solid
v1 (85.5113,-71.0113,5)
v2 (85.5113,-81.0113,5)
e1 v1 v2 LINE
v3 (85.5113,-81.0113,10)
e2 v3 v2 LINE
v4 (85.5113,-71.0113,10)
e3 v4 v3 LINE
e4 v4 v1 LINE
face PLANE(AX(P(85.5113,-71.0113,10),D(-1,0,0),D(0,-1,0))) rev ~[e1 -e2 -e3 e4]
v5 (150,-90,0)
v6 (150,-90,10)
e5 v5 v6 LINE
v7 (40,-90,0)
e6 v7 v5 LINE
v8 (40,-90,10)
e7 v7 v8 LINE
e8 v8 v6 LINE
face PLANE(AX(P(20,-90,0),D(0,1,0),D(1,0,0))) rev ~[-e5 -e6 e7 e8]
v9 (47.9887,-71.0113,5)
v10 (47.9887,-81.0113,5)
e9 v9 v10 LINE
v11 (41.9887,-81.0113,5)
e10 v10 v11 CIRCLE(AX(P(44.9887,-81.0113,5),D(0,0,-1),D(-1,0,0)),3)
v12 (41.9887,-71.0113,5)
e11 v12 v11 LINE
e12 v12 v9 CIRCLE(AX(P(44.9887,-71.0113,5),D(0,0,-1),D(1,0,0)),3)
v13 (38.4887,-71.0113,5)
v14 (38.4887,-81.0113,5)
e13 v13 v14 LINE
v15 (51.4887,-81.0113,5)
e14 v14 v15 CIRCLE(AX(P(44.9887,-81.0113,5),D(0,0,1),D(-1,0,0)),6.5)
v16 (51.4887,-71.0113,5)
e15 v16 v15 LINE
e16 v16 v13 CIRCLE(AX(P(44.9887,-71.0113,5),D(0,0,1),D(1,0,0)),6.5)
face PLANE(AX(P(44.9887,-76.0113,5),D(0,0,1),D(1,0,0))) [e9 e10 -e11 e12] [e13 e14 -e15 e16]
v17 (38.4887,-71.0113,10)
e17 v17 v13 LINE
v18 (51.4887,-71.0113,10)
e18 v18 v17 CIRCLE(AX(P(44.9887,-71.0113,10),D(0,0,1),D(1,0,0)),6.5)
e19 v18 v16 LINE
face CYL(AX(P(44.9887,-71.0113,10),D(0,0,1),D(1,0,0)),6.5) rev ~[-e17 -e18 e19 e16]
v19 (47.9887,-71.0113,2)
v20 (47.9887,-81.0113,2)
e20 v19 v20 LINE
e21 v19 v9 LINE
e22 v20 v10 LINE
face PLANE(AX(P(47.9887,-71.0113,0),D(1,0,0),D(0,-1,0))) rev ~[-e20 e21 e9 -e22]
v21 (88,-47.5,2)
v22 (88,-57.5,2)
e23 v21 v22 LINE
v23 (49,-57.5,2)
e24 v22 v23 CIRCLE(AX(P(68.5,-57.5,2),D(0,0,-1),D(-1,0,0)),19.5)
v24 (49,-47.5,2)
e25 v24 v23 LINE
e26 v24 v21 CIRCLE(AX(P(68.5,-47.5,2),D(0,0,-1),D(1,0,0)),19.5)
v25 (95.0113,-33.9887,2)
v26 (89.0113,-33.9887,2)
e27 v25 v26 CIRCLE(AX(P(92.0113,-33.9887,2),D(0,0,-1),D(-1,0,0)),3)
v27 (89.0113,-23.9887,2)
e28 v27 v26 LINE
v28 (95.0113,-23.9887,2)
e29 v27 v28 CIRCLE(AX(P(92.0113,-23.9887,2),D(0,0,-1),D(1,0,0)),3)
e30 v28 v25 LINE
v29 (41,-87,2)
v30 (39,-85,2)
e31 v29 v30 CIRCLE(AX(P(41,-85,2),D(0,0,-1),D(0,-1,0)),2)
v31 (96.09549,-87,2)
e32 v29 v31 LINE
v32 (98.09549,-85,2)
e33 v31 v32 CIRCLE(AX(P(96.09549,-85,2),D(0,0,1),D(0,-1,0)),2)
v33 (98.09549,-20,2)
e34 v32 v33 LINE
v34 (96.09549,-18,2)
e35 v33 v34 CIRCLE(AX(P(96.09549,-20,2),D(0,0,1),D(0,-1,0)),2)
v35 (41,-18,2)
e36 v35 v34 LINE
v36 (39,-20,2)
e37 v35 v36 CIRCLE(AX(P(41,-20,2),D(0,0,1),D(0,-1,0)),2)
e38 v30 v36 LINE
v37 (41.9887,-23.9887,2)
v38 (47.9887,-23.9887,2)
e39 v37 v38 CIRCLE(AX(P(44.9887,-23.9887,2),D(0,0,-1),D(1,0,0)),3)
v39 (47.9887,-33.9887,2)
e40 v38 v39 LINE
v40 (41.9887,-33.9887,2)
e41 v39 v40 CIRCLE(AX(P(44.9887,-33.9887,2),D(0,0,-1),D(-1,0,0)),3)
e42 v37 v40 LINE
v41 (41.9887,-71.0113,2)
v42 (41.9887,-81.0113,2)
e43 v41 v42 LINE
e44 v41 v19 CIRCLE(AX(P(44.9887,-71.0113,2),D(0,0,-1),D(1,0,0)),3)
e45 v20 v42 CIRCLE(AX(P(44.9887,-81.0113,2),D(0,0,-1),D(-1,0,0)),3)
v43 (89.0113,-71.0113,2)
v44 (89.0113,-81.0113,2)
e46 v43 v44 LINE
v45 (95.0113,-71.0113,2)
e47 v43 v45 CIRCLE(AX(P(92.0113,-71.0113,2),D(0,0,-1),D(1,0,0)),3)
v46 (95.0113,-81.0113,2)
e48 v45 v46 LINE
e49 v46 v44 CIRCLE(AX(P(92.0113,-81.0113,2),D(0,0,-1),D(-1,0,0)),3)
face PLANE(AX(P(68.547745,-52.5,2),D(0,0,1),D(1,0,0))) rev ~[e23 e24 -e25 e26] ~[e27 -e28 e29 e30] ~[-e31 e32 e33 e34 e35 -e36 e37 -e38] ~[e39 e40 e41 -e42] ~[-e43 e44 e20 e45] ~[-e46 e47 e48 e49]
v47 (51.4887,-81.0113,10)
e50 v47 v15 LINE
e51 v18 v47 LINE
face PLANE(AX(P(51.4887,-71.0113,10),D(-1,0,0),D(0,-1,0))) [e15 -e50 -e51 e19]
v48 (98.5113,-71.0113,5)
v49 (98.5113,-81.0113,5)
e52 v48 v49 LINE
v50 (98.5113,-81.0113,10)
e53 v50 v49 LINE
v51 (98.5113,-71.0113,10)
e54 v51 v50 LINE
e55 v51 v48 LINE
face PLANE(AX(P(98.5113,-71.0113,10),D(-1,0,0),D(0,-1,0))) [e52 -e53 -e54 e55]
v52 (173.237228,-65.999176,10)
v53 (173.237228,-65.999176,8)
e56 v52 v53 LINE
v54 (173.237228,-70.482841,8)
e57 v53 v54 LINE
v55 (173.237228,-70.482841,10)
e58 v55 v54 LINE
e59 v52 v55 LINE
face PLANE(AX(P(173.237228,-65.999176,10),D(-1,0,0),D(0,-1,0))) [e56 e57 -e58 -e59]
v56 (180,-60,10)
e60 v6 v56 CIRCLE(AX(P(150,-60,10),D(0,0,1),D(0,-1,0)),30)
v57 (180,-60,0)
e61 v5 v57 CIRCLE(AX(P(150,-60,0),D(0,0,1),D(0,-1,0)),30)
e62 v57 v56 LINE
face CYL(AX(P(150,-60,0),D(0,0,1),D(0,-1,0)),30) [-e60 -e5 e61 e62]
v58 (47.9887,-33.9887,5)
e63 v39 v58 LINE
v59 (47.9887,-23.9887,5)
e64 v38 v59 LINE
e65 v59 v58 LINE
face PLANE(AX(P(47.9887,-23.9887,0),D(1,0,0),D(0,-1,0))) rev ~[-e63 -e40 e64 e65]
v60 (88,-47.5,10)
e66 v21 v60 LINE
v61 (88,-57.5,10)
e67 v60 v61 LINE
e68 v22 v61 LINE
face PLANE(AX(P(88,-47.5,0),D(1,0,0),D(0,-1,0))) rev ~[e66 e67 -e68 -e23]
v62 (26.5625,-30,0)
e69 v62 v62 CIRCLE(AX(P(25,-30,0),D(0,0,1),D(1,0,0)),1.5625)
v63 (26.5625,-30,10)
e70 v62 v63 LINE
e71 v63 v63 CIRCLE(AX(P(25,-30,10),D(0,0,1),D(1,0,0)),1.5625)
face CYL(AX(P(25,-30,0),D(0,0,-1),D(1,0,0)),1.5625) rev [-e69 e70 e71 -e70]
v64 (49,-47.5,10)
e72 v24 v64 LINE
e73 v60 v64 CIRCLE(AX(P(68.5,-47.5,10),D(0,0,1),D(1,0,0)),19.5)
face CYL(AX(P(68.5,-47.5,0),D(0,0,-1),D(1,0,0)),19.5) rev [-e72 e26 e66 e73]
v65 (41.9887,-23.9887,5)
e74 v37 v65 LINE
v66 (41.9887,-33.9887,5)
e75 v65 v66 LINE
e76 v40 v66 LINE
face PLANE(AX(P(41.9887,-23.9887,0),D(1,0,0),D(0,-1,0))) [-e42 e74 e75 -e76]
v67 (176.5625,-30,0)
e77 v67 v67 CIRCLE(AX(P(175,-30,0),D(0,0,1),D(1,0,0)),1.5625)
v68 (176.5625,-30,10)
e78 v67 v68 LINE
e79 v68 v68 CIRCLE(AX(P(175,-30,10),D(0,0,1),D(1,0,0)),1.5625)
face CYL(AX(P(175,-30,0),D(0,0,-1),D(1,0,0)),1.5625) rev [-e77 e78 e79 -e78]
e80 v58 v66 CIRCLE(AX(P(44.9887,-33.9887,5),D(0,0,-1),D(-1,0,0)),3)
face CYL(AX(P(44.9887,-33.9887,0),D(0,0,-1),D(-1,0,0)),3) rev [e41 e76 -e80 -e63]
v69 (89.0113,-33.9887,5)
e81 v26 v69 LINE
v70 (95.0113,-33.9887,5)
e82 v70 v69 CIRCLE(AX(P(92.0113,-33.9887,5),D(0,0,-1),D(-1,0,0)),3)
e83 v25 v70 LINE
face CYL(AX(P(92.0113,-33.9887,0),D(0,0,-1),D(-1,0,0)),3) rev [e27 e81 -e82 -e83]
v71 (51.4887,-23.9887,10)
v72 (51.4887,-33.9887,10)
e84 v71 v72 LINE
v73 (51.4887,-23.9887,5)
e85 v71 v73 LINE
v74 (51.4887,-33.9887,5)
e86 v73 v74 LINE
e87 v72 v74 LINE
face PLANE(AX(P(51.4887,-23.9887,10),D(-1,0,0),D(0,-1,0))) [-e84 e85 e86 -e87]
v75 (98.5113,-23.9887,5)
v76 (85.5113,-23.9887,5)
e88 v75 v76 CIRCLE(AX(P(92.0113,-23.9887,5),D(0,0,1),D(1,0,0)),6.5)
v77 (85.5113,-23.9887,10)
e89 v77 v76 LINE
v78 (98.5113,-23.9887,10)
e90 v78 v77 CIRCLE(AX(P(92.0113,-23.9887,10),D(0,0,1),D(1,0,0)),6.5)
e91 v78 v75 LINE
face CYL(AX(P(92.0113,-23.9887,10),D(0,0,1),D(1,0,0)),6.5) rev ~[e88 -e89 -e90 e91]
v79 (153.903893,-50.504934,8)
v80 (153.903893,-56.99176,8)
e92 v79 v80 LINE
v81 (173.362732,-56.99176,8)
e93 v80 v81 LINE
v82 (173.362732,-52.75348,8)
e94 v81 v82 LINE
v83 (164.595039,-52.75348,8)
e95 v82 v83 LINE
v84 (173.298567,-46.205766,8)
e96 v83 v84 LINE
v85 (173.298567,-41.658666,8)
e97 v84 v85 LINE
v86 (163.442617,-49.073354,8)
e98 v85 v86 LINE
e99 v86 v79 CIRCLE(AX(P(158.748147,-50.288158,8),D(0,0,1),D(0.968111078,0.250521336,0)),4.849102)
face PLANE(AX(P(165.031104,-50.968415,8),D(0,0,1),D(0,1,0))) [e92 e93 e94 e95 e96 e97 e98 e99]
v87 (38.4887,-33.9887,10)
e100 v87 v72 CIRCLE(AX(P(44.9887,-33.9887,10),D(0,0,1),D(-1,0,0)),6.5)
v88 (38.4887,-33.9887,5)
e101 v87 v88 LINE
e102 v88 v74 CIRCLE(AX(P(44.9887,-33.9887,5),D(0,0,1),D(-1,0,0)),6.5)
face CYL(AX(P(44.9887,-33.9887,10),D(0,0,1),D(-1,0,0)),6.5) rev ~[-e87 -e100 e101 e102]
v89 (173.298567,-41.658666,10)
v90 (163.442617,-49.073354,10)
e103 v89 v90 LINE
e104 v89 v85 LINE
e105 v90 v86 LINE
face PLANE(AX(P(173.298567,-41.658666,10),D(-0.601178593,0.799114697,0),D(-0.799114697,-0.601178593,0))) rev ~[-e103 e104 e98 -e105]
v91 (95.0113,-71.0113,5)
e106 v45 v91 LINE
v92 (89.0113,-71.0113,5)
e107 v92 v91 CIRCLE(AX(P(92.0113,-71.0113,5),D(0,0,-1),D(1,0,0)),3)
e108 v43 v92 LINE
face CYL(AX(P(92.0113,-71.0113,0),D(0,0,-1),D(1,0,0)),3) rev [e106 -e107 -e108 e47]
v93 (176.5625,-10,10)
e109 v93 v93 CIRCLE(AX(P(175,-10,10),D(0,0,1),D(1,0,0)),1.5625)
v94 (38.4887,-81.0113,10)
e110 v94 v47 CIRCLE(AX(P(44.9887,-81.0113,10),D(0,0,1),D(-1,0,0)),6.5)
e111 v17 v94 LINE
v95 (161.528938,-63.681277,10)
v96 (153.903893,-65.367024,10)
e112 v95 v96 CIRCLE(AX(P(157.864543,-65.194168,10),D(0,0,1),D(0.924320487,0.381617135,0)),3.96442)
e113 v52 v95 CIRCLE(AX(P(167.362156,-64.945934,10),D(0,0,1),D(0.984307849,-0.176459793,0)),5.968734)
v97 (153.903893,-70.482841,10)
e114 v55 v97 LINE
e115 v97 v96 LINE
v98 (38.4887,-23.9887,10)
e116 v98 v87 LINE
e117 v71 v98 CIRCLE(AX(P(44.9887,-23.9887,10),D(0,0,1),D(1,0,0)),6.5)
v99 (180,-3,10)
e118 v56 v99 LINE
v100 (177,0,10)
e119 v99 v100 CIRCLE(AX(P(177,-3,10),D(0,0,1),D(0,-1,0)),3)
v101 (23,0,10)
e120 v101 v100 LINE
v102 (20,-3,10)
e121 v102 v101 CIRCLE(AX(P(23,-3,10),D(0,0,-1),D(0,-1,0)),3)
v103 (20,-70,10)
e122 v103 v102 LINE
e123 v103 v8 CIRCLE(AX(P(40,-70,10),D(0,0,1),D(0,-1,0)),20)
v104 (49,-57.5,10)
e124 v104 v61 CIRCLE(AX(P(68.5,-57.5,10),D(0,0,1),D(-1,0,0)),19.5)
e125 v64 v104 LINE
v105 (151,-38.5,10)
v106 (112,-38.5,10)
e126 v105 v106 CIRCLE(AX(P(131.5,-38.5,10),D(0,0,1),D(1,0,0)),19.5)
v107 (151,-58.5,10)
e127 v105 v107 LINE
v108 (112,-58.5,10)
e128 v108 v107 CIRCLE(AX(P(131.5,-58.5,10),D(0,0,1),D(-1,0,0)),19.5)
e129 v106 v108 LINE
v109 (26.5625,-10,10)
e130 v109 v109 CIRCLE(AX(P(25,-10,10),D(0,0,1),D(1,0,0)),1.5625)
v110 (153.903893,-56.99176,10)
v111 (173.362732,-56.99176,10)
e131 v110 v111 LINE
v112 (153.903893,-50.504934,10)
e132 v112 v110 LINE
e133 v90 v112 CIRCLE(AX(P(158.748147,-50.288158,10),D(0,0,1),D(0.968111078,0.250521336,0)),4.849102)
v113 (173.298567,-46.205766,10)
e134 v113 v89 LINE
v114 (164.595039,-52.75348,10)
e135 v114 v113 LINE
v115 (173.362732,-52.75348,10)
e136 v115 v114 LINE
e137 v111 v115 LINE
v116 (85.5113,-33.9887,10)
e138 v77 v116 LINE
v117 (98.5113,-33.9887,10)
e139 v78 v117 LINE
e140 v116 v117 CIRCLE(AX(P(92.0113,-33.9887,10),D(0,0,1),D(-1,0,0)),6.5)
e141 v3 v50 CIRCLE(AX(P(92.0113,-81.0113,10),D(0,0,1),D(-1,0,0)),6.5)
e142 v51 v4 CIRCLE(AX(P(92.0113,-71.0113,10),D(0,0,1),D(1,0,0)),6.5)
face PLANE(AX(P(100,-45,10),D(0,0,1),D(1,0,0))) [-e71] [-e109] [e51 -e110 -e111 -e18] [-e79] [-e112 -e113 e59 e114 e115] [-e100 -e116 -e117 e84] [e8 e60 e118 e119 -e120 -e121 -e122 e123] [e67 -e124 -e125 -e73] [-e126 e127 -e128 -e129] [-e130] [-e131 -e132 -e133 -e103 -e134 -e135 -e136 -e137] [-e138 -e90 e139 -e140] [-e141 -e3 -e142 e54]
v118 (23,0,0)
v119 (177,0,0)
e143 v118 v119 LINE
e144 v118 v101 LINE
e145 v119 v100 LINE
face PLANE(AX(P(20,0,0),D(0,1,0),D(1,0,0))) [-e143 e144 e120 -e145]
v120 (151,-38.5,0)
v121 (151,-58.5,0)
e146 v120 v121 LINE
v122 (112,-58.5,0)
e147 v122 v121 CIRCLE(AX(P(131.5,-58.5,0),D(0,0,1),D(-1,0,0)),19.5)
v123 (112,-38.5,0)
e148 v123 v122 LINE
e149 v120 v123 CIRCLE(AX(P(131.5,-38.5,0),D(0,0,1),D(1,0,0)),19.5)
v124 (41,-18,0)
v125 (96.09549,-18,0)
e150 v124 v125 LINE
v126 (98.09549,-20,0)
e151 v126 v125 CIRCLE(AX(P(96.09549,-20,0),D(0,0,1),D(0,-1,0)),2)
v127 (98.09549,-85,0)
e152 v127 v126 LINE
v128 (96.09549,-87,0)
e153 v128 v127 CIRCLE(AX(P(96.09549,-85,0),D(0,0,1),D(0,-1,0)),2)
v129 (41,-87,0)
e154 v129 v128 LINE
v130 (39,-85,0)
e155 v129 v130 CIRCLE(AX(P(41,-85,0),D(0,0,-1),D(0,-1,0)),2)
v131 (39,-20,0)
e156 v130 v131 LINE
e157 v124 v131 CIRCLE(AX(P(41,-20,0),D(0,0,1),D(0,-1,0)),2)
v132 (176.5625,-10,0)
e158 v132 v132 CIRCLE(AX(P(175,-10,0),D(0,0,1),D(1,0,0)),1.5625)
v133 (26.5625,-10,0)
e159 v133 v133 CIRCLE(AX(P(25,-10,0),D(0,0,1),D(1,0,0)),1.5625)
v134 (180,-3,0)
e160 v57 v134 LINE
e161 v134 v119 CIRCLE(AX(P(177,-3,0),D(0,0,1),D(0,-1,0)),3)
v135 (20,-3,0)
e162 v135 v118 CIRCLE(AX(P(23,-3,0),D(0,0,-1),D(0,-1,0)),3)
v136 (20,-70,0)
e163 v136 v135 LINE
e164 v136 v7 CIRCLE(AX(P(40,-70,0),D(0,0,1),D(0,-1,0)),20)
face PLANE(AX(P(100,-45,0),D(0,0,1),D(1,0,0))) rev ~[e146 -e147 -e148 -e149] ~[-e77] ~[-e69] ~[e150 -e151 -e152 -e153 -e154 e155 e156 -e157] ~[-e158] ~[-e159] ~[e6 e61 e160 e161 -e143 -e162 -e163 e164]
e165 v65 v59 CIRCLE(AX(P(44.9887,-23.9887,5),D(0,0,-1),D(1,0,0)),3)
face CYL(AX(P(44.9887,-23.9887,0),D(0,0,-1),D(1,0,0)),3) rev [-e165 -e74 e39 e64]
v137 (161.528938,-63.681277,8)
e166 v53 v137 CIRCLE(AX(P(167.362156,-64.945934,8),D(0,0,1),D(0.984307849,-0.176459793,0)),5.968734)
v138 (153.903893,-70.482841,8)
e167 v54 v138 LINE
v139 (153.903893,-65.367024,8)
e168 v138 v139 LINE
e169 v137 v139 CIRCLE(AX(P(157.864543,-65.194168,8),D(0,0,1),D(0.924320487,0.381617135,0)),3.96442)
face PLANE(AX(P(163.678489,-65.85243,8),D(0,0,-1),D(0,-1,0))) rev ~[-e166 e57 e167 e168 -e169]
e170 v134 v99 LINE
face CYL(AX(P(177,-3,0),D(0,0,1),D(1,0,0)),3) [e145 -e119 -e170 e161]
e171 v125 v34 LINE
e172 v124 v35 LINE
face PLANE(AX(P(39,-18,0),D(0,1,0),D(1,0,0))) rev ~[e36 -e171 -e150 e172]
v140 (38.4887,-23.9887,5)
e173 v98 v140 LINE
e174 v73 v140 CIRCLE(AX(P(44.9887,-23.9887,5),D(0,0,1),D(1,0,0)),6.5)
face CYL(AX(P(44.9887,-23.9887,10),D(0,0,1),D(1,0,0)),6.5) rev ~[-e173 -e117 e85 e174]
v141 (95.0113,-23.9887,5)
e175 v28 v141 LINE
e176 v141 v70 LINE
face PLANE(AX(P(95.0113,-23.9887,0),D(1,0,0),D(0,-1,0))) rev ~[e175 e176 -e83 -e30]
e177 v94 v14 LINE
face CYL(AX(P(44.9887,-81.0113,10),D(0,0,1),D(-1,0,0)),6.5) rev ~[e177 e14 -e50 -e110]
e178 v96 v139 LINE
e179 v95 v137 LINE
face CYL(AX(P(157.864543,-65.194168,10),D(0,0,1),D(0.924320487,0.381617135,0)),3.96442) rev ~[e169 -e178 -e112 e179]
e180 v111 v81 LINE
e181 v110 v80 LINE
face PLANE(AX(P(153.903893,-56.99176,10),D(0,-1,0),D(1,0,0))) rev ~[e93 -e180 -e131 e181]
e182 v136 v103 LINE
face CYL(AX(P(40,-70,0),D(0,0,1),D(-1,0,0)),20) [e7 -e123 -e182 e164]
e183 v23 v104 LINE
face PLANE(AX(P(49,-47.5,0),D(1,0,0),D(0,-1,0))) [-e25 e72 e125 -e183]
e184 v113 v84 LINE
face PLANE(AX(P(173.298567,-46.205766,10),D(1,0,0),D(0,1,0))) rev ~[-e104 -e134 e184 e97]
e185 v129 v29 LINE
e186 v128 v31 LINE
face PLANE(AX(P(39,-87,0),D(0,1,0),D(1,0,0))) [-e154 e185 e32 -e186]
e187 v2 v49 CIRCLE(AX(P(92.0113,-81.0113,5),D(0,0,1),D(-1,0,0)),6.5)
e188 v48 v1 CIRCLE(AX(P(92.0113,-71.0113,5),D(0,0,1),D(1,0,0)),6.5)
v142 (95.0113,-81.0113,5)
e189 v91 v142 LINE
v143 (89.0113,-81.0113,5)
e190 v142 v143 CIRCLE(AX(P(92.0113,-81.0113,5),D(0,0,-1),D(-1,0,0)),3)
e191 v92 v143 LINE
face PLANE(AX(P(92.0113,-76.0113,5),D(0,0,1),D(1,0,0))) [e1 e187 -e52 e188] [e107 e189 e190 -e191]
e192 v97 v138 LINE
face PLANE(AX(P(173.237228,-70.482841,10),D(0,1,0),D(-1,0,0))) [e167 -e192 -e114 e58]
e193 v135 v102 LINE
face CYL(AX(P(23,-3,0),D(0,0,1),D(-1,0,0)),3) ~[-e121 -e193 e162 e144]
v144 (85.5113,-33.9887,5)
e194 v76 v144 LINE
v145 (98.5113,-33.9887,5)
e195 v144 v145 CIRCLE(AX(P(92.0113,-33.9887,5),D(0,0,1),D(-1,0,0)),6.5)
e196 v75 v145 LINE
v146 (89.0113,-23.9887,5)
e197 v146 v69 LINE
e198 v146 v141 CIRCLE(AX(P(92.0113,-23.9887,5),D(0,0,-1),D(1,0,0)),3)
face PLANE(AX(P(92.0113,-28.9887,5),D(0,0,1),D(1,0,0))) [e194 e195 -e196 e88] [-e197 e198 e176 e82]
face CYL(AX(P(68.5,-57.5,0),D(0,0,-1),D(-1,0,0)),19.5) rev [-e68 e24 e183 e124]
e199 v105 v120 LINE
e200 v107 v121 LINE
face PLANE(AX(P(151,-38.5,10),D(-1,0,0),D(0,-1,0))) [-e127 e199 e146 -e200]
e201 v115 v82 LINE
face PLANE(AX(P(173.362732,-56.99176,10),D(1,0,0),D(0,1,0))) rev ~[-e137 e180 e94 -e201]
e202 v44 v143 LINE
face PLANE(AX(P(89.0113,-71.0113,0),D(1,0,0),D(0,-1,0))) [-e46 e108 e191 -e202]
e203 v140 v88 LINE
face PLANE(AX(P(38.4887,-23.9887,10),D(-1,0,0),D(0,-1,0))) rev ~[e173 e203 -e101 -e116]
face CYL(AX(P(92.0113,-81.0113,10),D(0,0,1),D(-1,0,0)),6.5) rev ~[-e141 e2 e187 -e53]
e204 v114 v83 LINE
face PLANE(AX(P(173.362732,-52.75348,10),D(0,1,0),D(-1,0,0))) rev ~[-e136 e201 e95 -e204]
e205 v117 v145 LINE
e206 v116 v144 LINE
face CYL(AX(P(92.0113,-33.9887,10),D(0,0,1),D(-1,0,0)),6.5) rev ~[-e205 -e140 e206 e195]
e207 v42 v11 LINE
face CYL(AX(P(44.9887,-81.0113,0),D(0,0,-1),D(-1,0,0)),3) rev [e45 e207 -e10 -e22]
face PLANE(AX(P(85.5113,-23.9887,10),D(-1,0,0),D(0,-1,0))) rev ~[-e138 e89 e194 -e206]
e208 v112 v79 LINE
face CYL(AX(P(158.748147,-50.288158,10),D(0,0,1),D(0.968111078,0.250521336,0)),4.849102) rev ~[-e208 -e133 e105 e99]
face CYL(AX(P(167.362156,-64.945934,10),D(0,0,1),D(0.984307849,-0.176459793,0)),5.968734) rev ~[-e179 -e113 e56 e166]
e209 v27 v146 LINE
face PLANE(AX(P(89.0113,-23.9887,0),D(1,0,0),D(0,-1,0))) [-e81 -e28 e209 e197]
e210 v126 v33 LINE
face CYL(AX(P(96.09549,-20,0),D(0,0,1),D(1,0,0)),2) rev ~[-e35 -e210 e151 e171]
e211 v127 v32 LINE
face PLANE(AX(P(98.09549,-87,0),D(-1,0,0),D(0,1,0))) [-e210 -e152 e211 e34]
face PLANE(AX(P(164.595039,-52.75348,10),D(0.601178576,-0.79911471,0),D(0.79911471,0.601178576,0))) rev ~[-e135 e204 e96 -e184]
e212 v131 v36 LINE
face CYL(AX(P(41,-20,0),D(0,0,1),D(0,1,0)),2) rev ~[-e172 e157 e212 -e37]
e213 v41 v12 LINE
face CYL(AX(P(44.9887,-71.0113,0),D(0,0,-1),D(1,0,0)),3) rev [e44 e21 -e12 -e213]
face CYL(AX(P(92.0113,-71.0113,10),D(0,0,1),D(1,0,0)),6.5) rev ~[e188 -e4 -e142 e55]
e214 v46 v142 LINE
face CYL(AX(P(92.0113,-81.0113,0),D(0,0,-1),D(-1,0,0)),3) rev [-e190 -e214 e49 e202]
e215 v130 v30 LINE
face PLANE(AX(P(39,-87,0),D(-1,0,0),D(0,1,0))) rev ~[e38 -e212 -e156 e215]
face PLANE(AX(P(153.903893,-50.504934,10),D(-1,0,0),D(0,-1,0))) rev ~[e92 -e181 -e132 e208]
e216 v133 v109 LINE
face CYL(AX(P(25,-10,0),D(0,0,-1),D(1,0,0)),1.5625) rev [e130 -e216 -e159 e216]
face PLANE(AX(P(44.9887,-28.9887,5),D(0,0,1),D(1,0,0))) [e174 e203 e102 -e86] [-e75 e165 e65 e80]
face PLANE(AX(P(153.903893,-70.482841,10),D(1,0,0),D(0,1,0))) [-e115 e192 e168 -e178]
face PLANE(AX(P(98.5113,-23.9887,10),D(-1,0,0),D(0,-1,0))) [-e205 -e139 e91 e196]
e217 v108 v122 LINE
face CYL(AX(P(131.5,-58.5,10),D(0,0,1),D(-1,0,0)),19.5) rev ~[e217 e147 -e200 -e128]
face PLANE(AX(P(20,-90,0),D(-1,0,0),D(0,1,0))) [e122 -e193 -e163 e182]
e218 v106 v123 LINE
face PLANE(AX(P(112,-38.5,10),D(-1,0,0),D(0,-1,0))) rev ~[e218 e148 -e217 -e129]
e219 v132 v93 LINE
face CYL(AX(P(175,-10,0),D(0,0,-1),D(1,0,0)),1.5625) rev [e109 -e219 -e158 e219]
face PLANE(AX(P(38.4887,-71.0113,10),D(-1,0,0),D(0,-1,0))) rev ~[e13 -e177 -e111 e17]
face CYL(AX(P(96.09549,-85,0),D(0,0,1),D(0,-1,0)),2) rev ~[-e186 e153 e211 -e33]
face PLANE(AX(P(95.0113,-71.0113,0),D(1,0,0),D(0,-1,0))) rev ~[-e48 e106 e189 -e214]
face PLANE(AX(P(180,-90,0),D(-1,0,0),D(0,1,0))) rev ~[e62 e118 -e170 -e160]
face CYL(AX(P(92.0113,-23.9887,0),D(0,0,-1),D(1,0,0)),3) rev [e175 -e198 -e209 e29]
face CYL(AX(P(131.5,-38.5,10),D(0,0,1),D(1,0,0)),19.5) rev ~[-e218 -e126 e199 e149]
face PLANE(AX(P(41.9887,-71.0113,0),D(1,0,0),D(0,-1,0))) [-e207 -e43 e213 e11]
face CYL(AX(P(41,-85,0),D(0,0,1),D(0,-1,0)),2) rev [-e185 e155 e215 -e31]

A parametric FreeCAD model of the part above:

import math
import FreeCAD as App
import Part
import Sketcher
from FreeCAD import Vector


def edges_at(feature, points):
    """Names of the edges that pass closest to the given points."""
    edges = feature.Shape.Edges
    near = lambda p: min(range(len(edges)), key=lambda i: edges[i].distToShape(Part.Vertex(*p))[0])
    return sorted({f"Edge{near(p) + 1}" for p in points})


def add_polygon(sketch, points):
    """Adds a closed chain of lines whose ends are joined by coincident constraints."""
    first, n = sketch.GeometryCount, len(points)
    for a, b in zip(points, points[1:] + points[:1]):
        sketch.addGeometry(Part.LineSegment(App.Vector(*a, 0), App.Vector(*b, 0)), False)
    for i in range(n):
        sketch.addConstraint(Sketcher.Constraint("Coincident", first + i, 2, first + (i + 1) % n, 1))

doc = App.newDocument("Part")
params = doc.addObject("Spreadsheet::Sheet", "Params")
for row, (alias, value) in enumerate([
    ("sketch1_radius", "3 mm"),
    ("sketch1_radius2", "19.5 mm"),
    ("sketch1_width", "160 mm"),
    ("sketch1_height", "90 mm"),
    ("sketch1_height2", "10 mm"),
    ("pad1_length", "10 mm"),
    ("sketch2_radius", "6.5 mm"),
    ("sketch2_height", "10 mm"),
    ("pocket1_length", "5 mm"),
    ("fillet_radius", "20 mm"),
    ("fillet2_radius", "30 mm"),
    ("sketch3_radius", "19.5 mm"),
    ("sketch3_height", "20 mm"),
    ("fillet3_radius", "3 mm"),
    ("sketch4_height", "69 mm"),
    ("pocket3_length", "2 mm"),
    ("fillet4_radius", "2 mm"),
    ("pocket4_length", "2 mm"),
], start=1):
    params.set(f"A{row}", alias)
    params.set(f"B{row}", "=" + value)
    params.setAlias(f"B{row}", alias)

body = doc.addObject("PartDesign::Body", "Body")

# Sketch on XY plane
sketch1 = body.newObject("Sketcher::SketchObject", "Sketch")
sketch1.AttachmentSupport = (doc.getObject("XY_Plane"), [""])
sketch1.MapMode = "FlatFace"
add_polygon(sketch1, [(20, 0), (20, -90), (180, -90), (180, 0)])  # lines 0-3
sketch1.addGeometry(Part.ArcOfCircle(Part.Circle(Vector(44.9887, -71.0113, 0), Vector(0, 0, 1), 3), math.radians(0), math.radians(180)), False)  # 4
sketch1.addGeometry(Part.LineSegment(Vector(47.9887, -71.0113, 0), Vector(47.9887, -81.0113, 0)), False)  # 5
sketch1.addGeometry(Part.ArcOfCircle(Part.Circle(Vector(44.9887, -81.0113, 0), Vector(0, 0, 1), 3), math.radians(180), math.radians(360)), False)  # 6
sketch1.addGeometry(Part.LineSegment(Vector(41.9887, -81.0113, 0), Vector(41.9887, -71.0113, 0)), False)  # 7
sketch1.addGeometry(Part.ArcOfCircle(Part.Circle(Vector(92.0113, -71.0113, 0), Vector(0, 0, 1), 3), math.radians(0), math.radians(180)), False)  # 8
sketch1.addGeometry(Part.LineSegment(Vector(95.0113, -71.0113, 0), Vector(95.0113, -81.0113, 0)), False)  # 9
sketch1.addGeometry(Part.ArcOfCircle(Part.Circle(Vector(92.0113, -81.0113, 0), Vector(0, 0, 1), 3), math.radians(180), math.radians(360)), False)  # 10
sketch1.addGeometry(Part.LineSegment(Vector(89.0113, -81.0113, 0), Vector(89.0113, -71.0113, 0)), False)  # 11
sketch1.addGeometry(Part.ArcOfCircle(Part.Circle(Vector(68.5, -47.5, 0), Vector(0, 0, 1), 19.5), math.radians(0), math.radians(180)), False)  # 12
sketch1.addGeometry(Part.LineSegment(Vector(88, -47.5, 0), Vector(88, -57.5, 0)), False)  # 13
sketch1.addGeometry(Part.ArcOfCircle(Part.Circle(Vector(68.5, -57.5, 0), Vector(0, 0, 1), 19.5), math.radians(180), math.radians(360)), False)  # 14
sketch1.addGeometry(Part.LineSegment(Vector(49, -57.5, 0), Vector(49, -47.5, 0)), False)  # 15
sketch1.addGeometry(Part.Circle(Vector(25, -30, 0), Vector(0, 0, 1), 1.5625), False)  # 16
sketch1.addGeometry(Part.ArcOfCircle(Part.Circle(Vector(44.9887, -23.9887, 0), Vector(0, 0, 1), 3), math.radians(0), math.radians(180)), False)  # 17
sketch1.addGeometry(Part.LineSegment(Vector(47.9887, -23.9887, 0), Vector(47.9887, -33.9887, 0)), False)  # 18
sketch1.addGeometry(Part.ArcOfCircle(Part.Circle(Vector(44.9887, -33.9887, 0), Vector(0, 0, 1), 3), math.radians(180), math.radians(360)), False)  # 19
sketch1.addGeometry(Part.LineSegment(Vector(41.9887, -33.9887, 0), Vector(41.9887, -23.9887, 0)), False)  # 20
sketch1.addGeometry(Part.ArcOfCircle(Part.Circle(Vector(92.0113, -23.9887, 0), Vector(0, 0, 1), 3), math.radians(0), math.radians(180)), False)  # 21
sketch1.addGeometry(Part.LineSegment(Vector(95.0113, -23.9887, 0), Vector(95.0113, -33.9887, 0)), False)  # 22
sketch1.addGeometry(Part.ArcOfCircle(Part.Circle(Vector(92.0113, -33.9887, 0), Vector(0, 0, 1), 3), math.radians(180), math.radians(360)), False)  # 23
sketch1.addGeometry(Part.LineSegment(Vector(89.0113, -33.9887, 0), Vector(89.0113, -23.9887, 0)), False)  # 24
sketch1.addGeometry(Part.Circle(Vector(25, -10, 0), Vector(0, 0, 1), 1.5625), False)  # 25
sketch1.addGeometry(Part.Circle(Vector(175, -30, 0), Vector(0, 0, 1), 1.5625), False)  # 26
sketch1.addGeometry(Part.Circle(Vector(175, -10, 0), Vector(0, 0, 1), 1.5625), False)  # 27
sketch1.addConstraint(Sketcher.Constraint("Tangent", 4, 1, 5, 1))
sketch1.addConstraint(Sketcher.Constraint("Tangent", 5, 2, 6, 2))
sketch1.addConstraint(Sketcher.Constraint("Tangent", 6, 1, 7, 1))
sketch1.addConstraint(Sketcher.Constraint("Tangent", 7, 2, 4, 2))
sketch1.addConstraint(Sketcher.Constraint("Tangent", 8, 1, 9, 1))
sketch1.addConstraint(Sketcher.Constraint("Tangent", 9, 2, 10, 2))
sketch1.addConstraint(Sketcher.Constraint("Tangent", 10, 1, 11, 1))
sketch1.addConstraint(Sketcher.Constraint("Tangent", 11, 2, 8, 2))
sketch1.addConstraint(Sketcher.Constraint("Tangent", 12, 1, 13, 1))
sketch1.addConstraint(Sketcher.Constraint("Tangent", 13, 2, 14, 2))
sketch1.addConstraint(Sketcher.Constraint("Tangent", 14, 1, 15, 1))
sketch1.addConstraint(Sketcher.Constraint("Tangent", 15, 2, 12, 2))
sketch1.addConstraint(Sketcher.Constraint("Tangent", 17, 1, 18, 1))
sketch1.addConstraint(Sketcher.Constraint("Tangent", 18, 2, 19, 2))
sketch1.addConstraint(Sketcher.Constraint("Tangent", 19, 1, 20, 1))
sketch1.addConstraint(Sketcher.Constraint("Tangent", 20, 2, 17, 2))
sketch1.addConstraint(Sketcher.Constraint("Tangent", 21, 1, 22, 1))
sketch1.addConstraint(Sketcher.Constraint("Tangent", 22, 2, 23, 2))
sketch1.addConstraint(Sketcher.Constraint("Tangent", 23, 1, 24, 1))
sketch1.addConstraint(Sketcher.Constraint("Tangent", 24, 2, 21, 2))
sketch1.addConstraint(Sketcher.Constraint("Vertical", 0))
sketch1.addConstraint(Sketcher.Constraint("Horizontal", 1))
sketch1.addConstraint(Sketcher.Constraint("Vertical", 2))
sketch1.addConstraint(Sketcher.Constraint("Horizontal", 3))
sketch1.addConstraint(Sketcher.Constraint("Vertical", 5))
sketch1.addConstraint(Sketcher.Constraint("Vertical", 7))
sketch1.addConstraint(Sketcher.Constraint("Vertical", 9))
sketch1.addConstraint(Sketcher.Constraint("Vertical", 11))
sketch1.addConstraint(Sketcher.Constraint("Vertical", 13))
sketch1.addConstraint(Sketcher.Constraint("Vertical", 15))
sketch1.addConstraint(Sketcher.Constraint("Vertical", 18))
sketch1.addConstraint(Sketcher.Constraint("Vertical", 20))
sketch1.addConstraint(Sketcher.Constraint("Vertical", 22))
sketch1.addConstraint(Sketcher.Constraint("Vertical", 24))
sketch1.addConstraint(Sketcher.Constraint("Equal", 6, 8))
sketch1.addConstraint(Sketcher.Constraint("Equal", 10, 17))
sketch1.addConstraint(Sketcher.Constraint("Equal", 19, 21))
sketch1.addConstraint(Sketcher.Constraint("Equal", 16, 25))
sketch1.addConstraint(Sketcher.Constraint("Equal", 25, 26))
sketch1.addConstraint(Sketcher.Constraint("Equal", 26, 27))
sketch1.addConstraint(Sketcher.Constraint("PointOnObject", 2, 2, -1))
sketch1.addConstraint(Sketcher.Constraint("Horizontal", 4, 3, 8, 3))
sketch1.addConstraint(Sketcher.Constraint("Horizontal", 6, 3, 10, 3))
sketch1.addConstraint(Sketcher.Constraint("Horizontal", 17, 3, 21, 3))
sketch1.addConstraint(Sketcher.Constraint("Horizontal", 19, 3, 23, 3))
sketch1.addConstraint(Sketcher.Constraint("Horizontal", 16, 3, 26, 3))
sketch1.addConstraint(Sketcher.Constraint("Horizontal", 25, 3, 27, 3))
sketch1.addConstraint(Sketcher.Constraint("Vertical", 6, 3, 17, 3))
sketch1.addConstraint(Sketcher.Constraint("Vertical", 10, 3, 21, 3))
sketch1.addConstraint(Sketcher.Constraint("Vertical", 16, 3, 25, 3))
sketch1.addConstraint(Sketcher.Constraint("Vertical", 26, 3, 27, 3))
sketch1.addConstraint(Sketcher.Constraint("Equal", 11, 13))
sketch1.addConstraint(Sketcher.Constraint("Equal", 15, 18))
sketch1.addConstraint(Sketcher.Constraint("Radius", 4, 3.0))
sketch1.addConstraint(Sketcher.Constraint("Radius", 12, 19.5))
sketch1.addConstraint(Sketcher.Constraint("DistanceX", 1, 1, 1, 2, 160.0))
sketch1.addConstraint(Sketcher.Constraint("DistanceY", 0, 2, 0, 1, 90.0))
sketch1.addConstraint(Sketcher.Constraint("DistanceY", 5, 2, 5, 1, 10.0))
sketch1.addConstraint(Sketcher.Constraint("Diameter", 16, 3.125))
sketch1.addConstraint(Sketcher.Constraint("DistanceX", -1, 1, 16, 3, 25.0))
sketch1.addConstraint(Sketcher.Constraint("DistanceY", 16, 3, -1, 1, 30.0))
sketch1.addConstraint(Sketcher.Constraint("DistanceY", 25, 3, -1, 1, 10.0))
sketch1.addConstraint(Sketcher.Constraint("DistanceX", -1, 1, 26, 3, 175.0))
sketch1.addConstraint(Sketcher.Constraint("DistanceX", -1, 1, 0, 2, 20.0))
sketch1.addConstraint(Sketcher.Constraint("DistanceX", -1, 1, 12, 1, 88.0))
sketch1.addConstraint(Sketcher.Constraint("DistanceY", 12, 3, -1, 1, 47.5))
sketch1.addConstraint(Sketcher.Constraint("DistanceX", -1, 1, 4, 3, 44.9887))
sketch1.addConstraint(Sketcher.Constraint("DistanceY", 4, 3, -1, 1, 71.0113))
sketch1.addConstraint(Sketcher.Constraint("DistanceX", -1, 1, 8, 3, 92.0113))
sketch1.addConstraint(Sketcher.Constraint("DistanceY", 17, 3, -1, 1, 23.9887))
sketch1.setExpression("Constraints[57]", "Params.sketch1_radius")
sketch1.setExpression("Constraints[58]", "Params.sketch1_radius2")
sketch1.setExpression("Constraints[59]", "Params.sketch1_width")
sketch1.setExpression("Constraints[60]", "Params.sketch1_height")
sketch1.setExpression("Constraints[61]", "Params.sketch1_height2")
pad1 = body.newObject("PartDesign::Pad", "Pad")
pad1.Profile = sketch1
pad1.setExpression("Length", "Params.pad1_length")

# Sketch on XY plane
sketch2 = body.newObject("Sketcher::SketchObject", "Sketch001")
sketch2.AttachmentSupport = (doc.getObject("XY_Plane"), [""])
sketch2.MapMode = "FlatFace"
sketch2.AttachmentOffset = App.Placement(Vector(0, 0, 10), App.Rotation())
sketch2.addGeometry(Part.ArcOfCircle(Part.Circle(Vector(92.0113, -23.9887, 0), Vector(0, 0, 1), 6.5), math.radians(0), math.radians(180)), False)
sketch2.addGeometry(Part.LineSegment(Vector(85.5113, -23.9887, 0), Vector(85.5113, -33.9887, 0)), False)
sketch2.addGeometry(Part.ArcOfCircle(Part.Circle(Vector(92.0113, -33.9887, 0), Vector(0, 0, 1), 6.5), math.radians(180), math.radians(360)), False)
sketch2.addGeometry(Part.LineSegment(Vector(98.5113, -33.9887, 0), Vector(98.5113, -23.9887, 0)), False)
sketch2.addGeometry(Part.ArcOfCircle(Part.Circle(Vector(44.9887, -23.9887, 0), Vector(0, 0, 1), 6.5), math.radians(0), math.radians(180)), False)
sketch2.addGeometry(Part.LineSegment(Vector(38.4887, -23.9887, 0), Vector(38.4887, -33.9887, 0)), False)
sketch2.addGeometry(Part.ArcOfCircle(Part.Circle(Vector(44.9887, -33.9887, 0), Vector(0, 0, 1), 6.5), math.radians(180), math.radians(360)), False)
sketch2.addGeometry(Part.LineSegment(Vector(51.4887, -33.9887, 0), Vector(51.4887, -23.9887, 0)), False)
sketch2.addGeometry(Part.ArcOfCircle(Part.Circle(Vector(92.0113, -71.0113, 0), Vector(0, 0, 1), 6.5), math.radians(0), math.radians(180)), False)
sketch2.addGeometry(Part.LineSegment(Vector(85.5113, -71.0113, 0), Vector(85.5113, -81.0113, 0)), False)
sketch2.addGeometry(Part.ArcOfCircle(Part.Circle(Vector(92.0113, -81.0113, 0), Vector(0, 0, 1), 6.5), math.radians(180), math.radians(360)), False)
sketch2.addGeometry(Part.LineSegment(Vector(98.5113, -81.0113, 0), Vector(98.5113, -71.0113, 0)), False)
sketch2.addGeometry(Part.ArcOfCircle(Part.Circle(Vector(44.9887, -71.0113, 0), Vector(0, 0, 1), 6.5), math.radians(0), math.radians(180)), False)
sketch2.addGeometry(Part.LineSegment(Vector(38.4887, -71.0113, 0), Vector(38.4887, -81.0113, 0)), False)
sketch2.addGeometry(Part.ArcOfCircle(Part.Circle(Vector(44.9887, -81.0113, 0), Vector(0, 0, 1), 6.5), math.radians(180), math.radians(360)), False)
sketch2.addGeometry(Part.LineSegment(Vector(51.4887, -81.0113, 0), Vector(51.4887, -71.0113, 0)), False)
sketch2.addConstraint(Sketcher.Constraint("Tangent", 0, 2, 1, 1))
sketch2.addConstraint(Sketcher.Constraint("Tangent", 1, 2, 2, 1))
sketch2.addConstraint(Sketcher.Constraint("Tangent", 2, 2, 3, 1))
sketch2.addConstraint(Sketcher.Constraint("Tangent", 3, 2, 0, 1))
sketch2.addConstraint(Sketcher.Constraint("Tangent", 4, 2, 5, 1))
sketch2.addConstraint(Sketcher.Constraint("Tangent", 5, 2, 6, 1))
sketch2.addConstraint(Sketcher.Constraint("Tangent", 6, 2, 7, 1))
sketch2.addConstraint(Sketcher.Constraint("Tangent", 7, 2, 4, 1))
sketch2.addConstraint(Sketcher.Constraint("Tangent", 8, 2, 9, 1))
sketch2.addConstraint(Sketcher.Constraint("Tangent", 9, 2, 10, 1))
sketch2.addConstraint(Sketcher.Constraint("Tangent", 10, 2, 11, 1))
sketch2.addConstraint(Sketcher.Constraint("Tangent", 11, 2, 8, 1))
sketch2.addConstraint(Sketcher.Constraint("Tangent", 12, 2, 13, 1))
sketch2.addConstraint(Sketcher.Constraint("Tangent", 13, 2, 14, 1))
sketch2.addConstraint(Sketcher.Constraint("Tangent", 14, 2, 15, 1))
sketch2.addConstraint(Sketcher.Constraint("Tangent", 15, 2, 12, 1))
sketch2.addConstraint(Sketcher.Constraint("Vertical", 1))
sketch2.addConstraint(Sketcher.Constraint("Vertical", 3))
sketch2.addConstraint(Sketcher.Constraint("Vertical", 5))
sketch2.addConstraint(Sketcher.Constraint("Vertical", 7))
sketch2.addConstraint(Sketcher.Constraint("Vertical", 9))
sketch2.addConstraint(Sketcher.Constraint("Vertical", 11))
sketch2.addConstraint(Sketcher.Constraint("Vertical", 13))
sketch2.addConstraint(Sketcher.Constraint("Vertical", 15))
sketch2.addConstraint(Sketcher.Constraint("Equal", 2, 4))
sketch2.addConstraint(Sketcher.Constraint("Equal", 6, 8))
sketch2.addConstraint(Sketcher.Constraint("Equal", 10, 12))
sketch2.addConstraint(Sketcher.Constraint("Horizontal", 0, 3, 4, 3))
sketch2.addConstraint(Sketcher.Constraint("Horizontal", 2, 3, 6, 3))
sketch2.addConstraint(Sketcher.Constraint("Horizontal", 8, 3, 12, 3))
sketch2.addConstraint(Sketcher.Constraint("Horizontal", 10, 3, 14, 3))
sketch2.addConstraint(Sketcher.Constraint("Vertical", 2, 3, 8, 3))
sketch2.addConstraint(Sketcher.Constraint("Vertical", 6, 3, 12, 3))
sketch2.addConstraint(Sketcher.Constraint("Equal", 7, 9))
sketch2.addConstraint(Sketcher.Constraint("Radius", 0, 6.5))
sketch2.addConstraint(Sketcher.Constraint("DistanceY", 1, 2, 1, 1, 10.0))
sketch2.addConstraint(Sketcher.Constraint("DistanceX", -1, 1, 0, 3, 92.0113))
sketch2.addConstraint(Sketcher.Constraint("DistanceY", 0, 3, -1, 1, 23.9887))
sketch2.addConstraint(Sketcher.Constraint("DistanceX", -1, 1, 4, 3, 44.9887))
sketch2.addConstraint(Sketcher.Constraint("DistanceY", 8, 3, -1, 1, 71.0113))
sketch2.setExpression("Constraints[34]", "Params.sketch2_radius")
sketch2.setExpression("Constraints[35]", "Params.sketch2_height")
pocket1 = body.newObject("PartDesign::Pocket", "Pocket")
pocket1.Profile = sketch2
pocket1.setExpression("Length", "Params.pocket1_length")
doc.recompute()

fillet = body.newObject("PartDesign::Fillet", "Fillet")
fillet.Base = (pocket1, edges_at(pocket1, [(20, -90, 5)]))
fillet.setExpression("Radius", "Params.fillet_radius")
doc.recompute()

fillet2 = body.newObject("PartDesign::Fillet", "Fillet001")
fillet2.Base = (fillet, edges_at(fillet, [(180, -90, 5)]))
fillet2.setExpression("Radius", "Params.fillet2_radius")

# Sketch on XY plane
sketch3 = body.newObject("Sketcher::SketchObject", "Sketch002")
sketch3.AttachmentSupport = (doc.getObject("XY_Plane"), [""])
sketch3.MapMode = "FlatFace"
sketch3.AttachmentOffset = App.Placement(Vector(0, 0, 10), App.Rotation())
sketch3.addGeometry(Part.ArcOfCircle(Part.Circle(Vector(131.5, -38.5, 0), Vector(0, 0, 1), 19.5), math.radians(0), math.radians(180)), False)
sketch3.addGeometry(Part.LineSegment(Vector(112, -38.5, 0), Vector(112, -58.5, 0)), False)
sketch3.addGeometry(Part.ArcOfCircle(Part.Circle(Vector(131.5, -58.5, 0), Vector(0, 0, 1), 19.5), math.radians(180), math.radians(360)), False)
sketch3.addGeometry(Part.LineSegment(Vector(151, -58.5, 0), Vector(151, -38.5, 0)), False)
sketch3.addConstraint(Sketcher.Constraint("Tangent", 0, 2, 1, 1))
sketch3.addConstraint(Sketcher.Constraint("Tangent", 1, 2, 2, 1))
sketch3.addConstraint(Sketcher.Constraint("Tangent", 2, 2, 3, 1))
sketch3.addConstraint(Sketcher.Constraint("Tangent", 3, 2, 0, 1))
sketch3.addConstraint(Sketcher.Constraint("Vertical", 1))
sketch3.addConstraint(Sketcher.Constraint("Vertical", 3))
sketch3.addConstraint(Sketcher.Constraint("Radius", 0, 19.5))
sketch3.addConstraint(Sketcher.Constraint("DistanceY", 1, 2, 1, 1, 20.0))
sketch3.addConstraint(Sketcher.Constraint("DistanceX", -1, 1, 0, 2, 112.0))
sketch3.addConstraint(Sketcher.Constraint("DistanceY", 0, 3, -1, 1, 38.5))
sketch3.setExpression("Constraints[6]", "Params.sketch3_radius")
sketch3.setExpression("Constraints[7]", "Params.sketch3_height")
pocket2 = body.newObject("PartDesign::Pocket", "Pocket001")
pocket2.Profile = sketch3
pocket2.Type = "ThroughAll"
doc.recompute()

fillet3 = body.newObject("PartDesign::Fillet", "Fillet002")
fillet3.Base = (pocket2, edges_at(pocket2, [(20, 0, 5), (180, 0, 5)]))
fillet3.setExpression("Radius", "Params.fillet3_radius")

# Sketch on XY plane
sketch4 = body.newObject("Sketcher::SketchObject", "Sketch003")
sketch4.AttachmentSupport = (doc.getObject("XY_Plane"), [""])
sketch4.MapMode = "FlatFace"
add_polygon(sketch4, [(39, -18), (39, -87), (98.09549, -87), (98.09549, -18)])  # lines 0-3
sketch4.addConstraint(Sketcher.Constraint("Vertical", 0))
sketch4.addConstraint(Sketcher.Constraint("Horizontal", 1))
sketch4.addConstraint(Sketcher.Constraint("Vertical", 2))
sketch4.addConstraint(Sketcher.Constraint("Horizontal", 3))
sketch4.addConstraint(Sketcher.Constraint("DistanceY", 0, 2, 0, 1, 69.0))
sketch4.addConstraint(Sketcher.Constraint("DistanceX", -1, 1, 0, 2, 39.0))
sketch4.addConstraint(Sketcher.Constraint("DistanceY", 0, 2, -1, 1, 87.0))
sketch4.addConstraint(Sketcher.Constraint("DistanceX", 1, 1, 1, 2, 59.09549))
sketch4.setExpression("Constraints[8]", "Params.sketch4_height")
pocket3 = body.newObject("PartDesign::Pocket", "Pocket002")
pocket3.Profile = sketch4
pocket3.setExpression("Length", "Params.pocket3_length")
pocket3.Reversed = True
doc.recompute()

fillet4 = body.newObject("PartDesign::Fillet", "Fillet003")
fillet4.Base = (pocket3, edges_at(pocket3, [
    (98.095, -18, 1),
    (39, -18, 1),
    (39, -87, 1),
    (98.095, -87, 1),
]))
fillet4.setExpression("Radius", "Params.fillet4_radius")

# Sketch on XY plane
sketch5 = body.newObject("Sketcher::SketchObject", "Sketch004")
sketch5.AttachmentSupport = (doc.getObject("XY_Plane"), [""])
sketch5.MapMode = "FlatFace"
sketch5.AttachmentOffset = App.Placement(Vector(0, 0, 10), App.Rotation())
sketch5.addGeometry(Part.LineSegment(Vector(153.903893, -65.367024, 0), Vector(153.903893, -70.482841, 0)), False)
sketch5.addGeometry(Part.LineSegment(Vector(153.903893, -70.482841, 0), Vector(173.237228, -70.482841, 0)), False)
sketch5.addGeometry(Part.LineSegment(Vector(173.237228, -70.482841, 0), Vector(173.237228, -65.999176, 0)), False)
sketch5.addGeometry(Part.ArcOfCircle(Part.Circle(Vector(167.362156, -64.945934, 0), Vector(0, 0, 1), 5.968734), math.radians(-10.16362), math.radians(167.767433)), False)
sketch5.addGeometry(Part.ArcOfCircle(Part.Circle(Vector(157.864543, -65.194168, 0), Vector(0, 0, 1), 3.96442), math.radians(22.433888), math.radians(182.498997)), False)
sketch5.addGeometry(Part.LineSegment(Vector(153.903893, -50.504934, 0), Vector(153.903893, -56.99176, 0)), False)
sketch5.addGeometry(Part.LineSegment(Vector(153.903893, -56.99176, 0), Vector(173.362732, -56.99176, 0)), False)
sketch5.addGeometry(Part.LineSegment(Vector(173.362732, -56.99176, 0), Vector(173.362732, -52.75348, 0)), False)
sketch5.addGeometry(Part.LineSegment(Vector(173.362732, -52.75348, 0), Vector(164.595039, -52.75348, 0)), False)
sketch5.addGeometry(Part.LineSegment(Vector(164.595039, -52.75348, 0), Vector(173.298567, -46.205766, 0)), False)
sketch5.addGeometry(Part.LineSegment(Vector(173.298567, -46.205766, 0), Vector(173.298567, -41.658666, 0)), False)
sketch5.addGeometry(Part.LineSegment(Vector(173.298567, -41.658666, 0), Vector(163.442617, -49.073354, 0)), False)
sketch5.addGeometry(Part.ArcOfCircle(Part.Circle(Vector(158.748147, -50.288158, 0), Vector(0, 0, 1), 4.849102), math.radians(14.508364), math.radians(182.56223)), False)
sketch5.addConstraint(Sketcher.Constraint("Coincident", 0, 2, 1, 1))
sketch5.addConstraint(Sketcher.Constraint("Coincident", 1, 2, 2, 1))
sketch5.addConstraint(Sketcher.Constraint("Coincident", 2, 2, 3, 1))
sketch5.addConstraint(Sketcher.Constraint("Coincident", 3, 2, 4, 1))
sketch5.addConstraint(Sketcher.Constraint("Coincident", 4, 2, 0, 1))
sketch5.addConstraint(Sketcher.Constraint("Coincident", 5, 2, 6, 1))
sketch5.addConstraint(Sketcher.Constraint("Coincident", 6, 2, 7, 1))
sketch5.addConstraint(Sketcher.Constraint("Coincident", 7, 2, 8, 1))
sketch5.addConstraint(Sketcher.Constraint("Coincident", 8, 2, 9, 1))
sketch5.addConstraint(Sketcher.Constraint("Coincident", 9, 2, 10, 1))
sketch5.addConstraint(Sketcher.Constraint("Coincident", 10, 2, 11, 1))
sketch5.addConstraint(Sketcher.Constraint("Coincident", 11, 2, 12, 1))
sketch5.addConstraint(Sketcher.Constraint("Coincident", 12, 2, 5, 1))
sketch5.addConstraint(Sketcher.Constraint("Vertical", 0))
sketch5.addConstraint(Sketcher.Constraint("Horizontal", 1))
sketch5.addConstraint(Sketcher.Constraint("Vertical", 2))
sketch5.addConstraint(Sketcher.Constraint("Vertical", 5))
sketch5.addConstraint(Sketcher.Constraint("Horizontal", 6))
sketch5.addConstraint(Sketcher.Constraint("Vertical", 7))
sketch5.addConstraint(Sketcher.Constraint("Horizontal", 8))
sketch5.addConstraint(Sketcher.Constraint("Vertical", 10))
sketch5.addConstraint(Sketcher.Constraint("Parallel", 9, 11))
sketch5.addConstraint(Sketcher.Constraint("Vertical", 4, 2, 5, 2))
sketch5.addConstraint(Sketcher.Constraint("Radius", 4, 3.96442))
sketch5.addConstraint(Sketcher.Constraint("DistanceY", 10, 1, 10, 2, 4.5471))
sketch5.addConstraint(Sketcher.Constraint("Radius", 3, 5.968734))
sketch5.addConstraint(Sketcher.Constraint("Radius", 12, 4.849102))
sketch5.addConstraint(Sketcher.Constraint("DistanceX", 6, 1, 6, 2, 19.458839))
sketch5.addConstraint(Sketcher.Constraint("DistanceY", 7, 1, 7, 2, 4.23828))
sketch5.addConstraint(Sketcher.Constraint("DistanceY", 2, 2, 3, 2, 2.317899))
sketch5.addConstraint(Sketcher.Constraint("DistanceX", 3, 2, 8, 2, 3.066101))
sketch5.addConstraint(Sketcher.Constraint("DistanceX", 1, 1, 1, 2, 19.333335))
sketch5.addConstraint(Sketcher.Constraint("DistanceX", 8, 2, 8, 1, 8.767693))
sketch5.addConstraint(Sketcher.Constraint("DistanceY", 0, 2, 0, 1, 5.115817))
sketch5.addConstraint(Sketcher.Constraint("DistanceY", 2, 1, 2, 2, 4.483665))
sketch5.addConstraint(Sketcher.Constraint("DistanceY", 5, 2, 5, 1, 6.486826))
sketch5.addConstraint(Sketcher.Constraint("DistanceY", 0, 2, -1, 1, 70.482841))
sketch5.addConstraint(Sketcher.Constraint("DistanceX", -1, 1, 3, 2, 161.528938))
sketch5.addConstraint(Sketcher.Constraint("DistanceY", 5, 2, -1, 1, 56.99176))
sketch5.addConstraint(Sketcher.Constraint("DistanceY", 4, 3, 12, 3, 14.90601))
sketch5.addConstraint(Sketcher.Constraint("DistanceX", 12, 3, 9, 2, 14.55042))
sketch5.addConstraint(Sketcher.Constraint("DistanceY", 12, 3, 9, 2, 4.082392))
pocket4 = body.newObject("PartDesign::Pocket", "Pocket003")
pocket4.Profile = sketch5
pocket4.setExpression("Length", "Params.pocket4_length")

doc.recompute()
